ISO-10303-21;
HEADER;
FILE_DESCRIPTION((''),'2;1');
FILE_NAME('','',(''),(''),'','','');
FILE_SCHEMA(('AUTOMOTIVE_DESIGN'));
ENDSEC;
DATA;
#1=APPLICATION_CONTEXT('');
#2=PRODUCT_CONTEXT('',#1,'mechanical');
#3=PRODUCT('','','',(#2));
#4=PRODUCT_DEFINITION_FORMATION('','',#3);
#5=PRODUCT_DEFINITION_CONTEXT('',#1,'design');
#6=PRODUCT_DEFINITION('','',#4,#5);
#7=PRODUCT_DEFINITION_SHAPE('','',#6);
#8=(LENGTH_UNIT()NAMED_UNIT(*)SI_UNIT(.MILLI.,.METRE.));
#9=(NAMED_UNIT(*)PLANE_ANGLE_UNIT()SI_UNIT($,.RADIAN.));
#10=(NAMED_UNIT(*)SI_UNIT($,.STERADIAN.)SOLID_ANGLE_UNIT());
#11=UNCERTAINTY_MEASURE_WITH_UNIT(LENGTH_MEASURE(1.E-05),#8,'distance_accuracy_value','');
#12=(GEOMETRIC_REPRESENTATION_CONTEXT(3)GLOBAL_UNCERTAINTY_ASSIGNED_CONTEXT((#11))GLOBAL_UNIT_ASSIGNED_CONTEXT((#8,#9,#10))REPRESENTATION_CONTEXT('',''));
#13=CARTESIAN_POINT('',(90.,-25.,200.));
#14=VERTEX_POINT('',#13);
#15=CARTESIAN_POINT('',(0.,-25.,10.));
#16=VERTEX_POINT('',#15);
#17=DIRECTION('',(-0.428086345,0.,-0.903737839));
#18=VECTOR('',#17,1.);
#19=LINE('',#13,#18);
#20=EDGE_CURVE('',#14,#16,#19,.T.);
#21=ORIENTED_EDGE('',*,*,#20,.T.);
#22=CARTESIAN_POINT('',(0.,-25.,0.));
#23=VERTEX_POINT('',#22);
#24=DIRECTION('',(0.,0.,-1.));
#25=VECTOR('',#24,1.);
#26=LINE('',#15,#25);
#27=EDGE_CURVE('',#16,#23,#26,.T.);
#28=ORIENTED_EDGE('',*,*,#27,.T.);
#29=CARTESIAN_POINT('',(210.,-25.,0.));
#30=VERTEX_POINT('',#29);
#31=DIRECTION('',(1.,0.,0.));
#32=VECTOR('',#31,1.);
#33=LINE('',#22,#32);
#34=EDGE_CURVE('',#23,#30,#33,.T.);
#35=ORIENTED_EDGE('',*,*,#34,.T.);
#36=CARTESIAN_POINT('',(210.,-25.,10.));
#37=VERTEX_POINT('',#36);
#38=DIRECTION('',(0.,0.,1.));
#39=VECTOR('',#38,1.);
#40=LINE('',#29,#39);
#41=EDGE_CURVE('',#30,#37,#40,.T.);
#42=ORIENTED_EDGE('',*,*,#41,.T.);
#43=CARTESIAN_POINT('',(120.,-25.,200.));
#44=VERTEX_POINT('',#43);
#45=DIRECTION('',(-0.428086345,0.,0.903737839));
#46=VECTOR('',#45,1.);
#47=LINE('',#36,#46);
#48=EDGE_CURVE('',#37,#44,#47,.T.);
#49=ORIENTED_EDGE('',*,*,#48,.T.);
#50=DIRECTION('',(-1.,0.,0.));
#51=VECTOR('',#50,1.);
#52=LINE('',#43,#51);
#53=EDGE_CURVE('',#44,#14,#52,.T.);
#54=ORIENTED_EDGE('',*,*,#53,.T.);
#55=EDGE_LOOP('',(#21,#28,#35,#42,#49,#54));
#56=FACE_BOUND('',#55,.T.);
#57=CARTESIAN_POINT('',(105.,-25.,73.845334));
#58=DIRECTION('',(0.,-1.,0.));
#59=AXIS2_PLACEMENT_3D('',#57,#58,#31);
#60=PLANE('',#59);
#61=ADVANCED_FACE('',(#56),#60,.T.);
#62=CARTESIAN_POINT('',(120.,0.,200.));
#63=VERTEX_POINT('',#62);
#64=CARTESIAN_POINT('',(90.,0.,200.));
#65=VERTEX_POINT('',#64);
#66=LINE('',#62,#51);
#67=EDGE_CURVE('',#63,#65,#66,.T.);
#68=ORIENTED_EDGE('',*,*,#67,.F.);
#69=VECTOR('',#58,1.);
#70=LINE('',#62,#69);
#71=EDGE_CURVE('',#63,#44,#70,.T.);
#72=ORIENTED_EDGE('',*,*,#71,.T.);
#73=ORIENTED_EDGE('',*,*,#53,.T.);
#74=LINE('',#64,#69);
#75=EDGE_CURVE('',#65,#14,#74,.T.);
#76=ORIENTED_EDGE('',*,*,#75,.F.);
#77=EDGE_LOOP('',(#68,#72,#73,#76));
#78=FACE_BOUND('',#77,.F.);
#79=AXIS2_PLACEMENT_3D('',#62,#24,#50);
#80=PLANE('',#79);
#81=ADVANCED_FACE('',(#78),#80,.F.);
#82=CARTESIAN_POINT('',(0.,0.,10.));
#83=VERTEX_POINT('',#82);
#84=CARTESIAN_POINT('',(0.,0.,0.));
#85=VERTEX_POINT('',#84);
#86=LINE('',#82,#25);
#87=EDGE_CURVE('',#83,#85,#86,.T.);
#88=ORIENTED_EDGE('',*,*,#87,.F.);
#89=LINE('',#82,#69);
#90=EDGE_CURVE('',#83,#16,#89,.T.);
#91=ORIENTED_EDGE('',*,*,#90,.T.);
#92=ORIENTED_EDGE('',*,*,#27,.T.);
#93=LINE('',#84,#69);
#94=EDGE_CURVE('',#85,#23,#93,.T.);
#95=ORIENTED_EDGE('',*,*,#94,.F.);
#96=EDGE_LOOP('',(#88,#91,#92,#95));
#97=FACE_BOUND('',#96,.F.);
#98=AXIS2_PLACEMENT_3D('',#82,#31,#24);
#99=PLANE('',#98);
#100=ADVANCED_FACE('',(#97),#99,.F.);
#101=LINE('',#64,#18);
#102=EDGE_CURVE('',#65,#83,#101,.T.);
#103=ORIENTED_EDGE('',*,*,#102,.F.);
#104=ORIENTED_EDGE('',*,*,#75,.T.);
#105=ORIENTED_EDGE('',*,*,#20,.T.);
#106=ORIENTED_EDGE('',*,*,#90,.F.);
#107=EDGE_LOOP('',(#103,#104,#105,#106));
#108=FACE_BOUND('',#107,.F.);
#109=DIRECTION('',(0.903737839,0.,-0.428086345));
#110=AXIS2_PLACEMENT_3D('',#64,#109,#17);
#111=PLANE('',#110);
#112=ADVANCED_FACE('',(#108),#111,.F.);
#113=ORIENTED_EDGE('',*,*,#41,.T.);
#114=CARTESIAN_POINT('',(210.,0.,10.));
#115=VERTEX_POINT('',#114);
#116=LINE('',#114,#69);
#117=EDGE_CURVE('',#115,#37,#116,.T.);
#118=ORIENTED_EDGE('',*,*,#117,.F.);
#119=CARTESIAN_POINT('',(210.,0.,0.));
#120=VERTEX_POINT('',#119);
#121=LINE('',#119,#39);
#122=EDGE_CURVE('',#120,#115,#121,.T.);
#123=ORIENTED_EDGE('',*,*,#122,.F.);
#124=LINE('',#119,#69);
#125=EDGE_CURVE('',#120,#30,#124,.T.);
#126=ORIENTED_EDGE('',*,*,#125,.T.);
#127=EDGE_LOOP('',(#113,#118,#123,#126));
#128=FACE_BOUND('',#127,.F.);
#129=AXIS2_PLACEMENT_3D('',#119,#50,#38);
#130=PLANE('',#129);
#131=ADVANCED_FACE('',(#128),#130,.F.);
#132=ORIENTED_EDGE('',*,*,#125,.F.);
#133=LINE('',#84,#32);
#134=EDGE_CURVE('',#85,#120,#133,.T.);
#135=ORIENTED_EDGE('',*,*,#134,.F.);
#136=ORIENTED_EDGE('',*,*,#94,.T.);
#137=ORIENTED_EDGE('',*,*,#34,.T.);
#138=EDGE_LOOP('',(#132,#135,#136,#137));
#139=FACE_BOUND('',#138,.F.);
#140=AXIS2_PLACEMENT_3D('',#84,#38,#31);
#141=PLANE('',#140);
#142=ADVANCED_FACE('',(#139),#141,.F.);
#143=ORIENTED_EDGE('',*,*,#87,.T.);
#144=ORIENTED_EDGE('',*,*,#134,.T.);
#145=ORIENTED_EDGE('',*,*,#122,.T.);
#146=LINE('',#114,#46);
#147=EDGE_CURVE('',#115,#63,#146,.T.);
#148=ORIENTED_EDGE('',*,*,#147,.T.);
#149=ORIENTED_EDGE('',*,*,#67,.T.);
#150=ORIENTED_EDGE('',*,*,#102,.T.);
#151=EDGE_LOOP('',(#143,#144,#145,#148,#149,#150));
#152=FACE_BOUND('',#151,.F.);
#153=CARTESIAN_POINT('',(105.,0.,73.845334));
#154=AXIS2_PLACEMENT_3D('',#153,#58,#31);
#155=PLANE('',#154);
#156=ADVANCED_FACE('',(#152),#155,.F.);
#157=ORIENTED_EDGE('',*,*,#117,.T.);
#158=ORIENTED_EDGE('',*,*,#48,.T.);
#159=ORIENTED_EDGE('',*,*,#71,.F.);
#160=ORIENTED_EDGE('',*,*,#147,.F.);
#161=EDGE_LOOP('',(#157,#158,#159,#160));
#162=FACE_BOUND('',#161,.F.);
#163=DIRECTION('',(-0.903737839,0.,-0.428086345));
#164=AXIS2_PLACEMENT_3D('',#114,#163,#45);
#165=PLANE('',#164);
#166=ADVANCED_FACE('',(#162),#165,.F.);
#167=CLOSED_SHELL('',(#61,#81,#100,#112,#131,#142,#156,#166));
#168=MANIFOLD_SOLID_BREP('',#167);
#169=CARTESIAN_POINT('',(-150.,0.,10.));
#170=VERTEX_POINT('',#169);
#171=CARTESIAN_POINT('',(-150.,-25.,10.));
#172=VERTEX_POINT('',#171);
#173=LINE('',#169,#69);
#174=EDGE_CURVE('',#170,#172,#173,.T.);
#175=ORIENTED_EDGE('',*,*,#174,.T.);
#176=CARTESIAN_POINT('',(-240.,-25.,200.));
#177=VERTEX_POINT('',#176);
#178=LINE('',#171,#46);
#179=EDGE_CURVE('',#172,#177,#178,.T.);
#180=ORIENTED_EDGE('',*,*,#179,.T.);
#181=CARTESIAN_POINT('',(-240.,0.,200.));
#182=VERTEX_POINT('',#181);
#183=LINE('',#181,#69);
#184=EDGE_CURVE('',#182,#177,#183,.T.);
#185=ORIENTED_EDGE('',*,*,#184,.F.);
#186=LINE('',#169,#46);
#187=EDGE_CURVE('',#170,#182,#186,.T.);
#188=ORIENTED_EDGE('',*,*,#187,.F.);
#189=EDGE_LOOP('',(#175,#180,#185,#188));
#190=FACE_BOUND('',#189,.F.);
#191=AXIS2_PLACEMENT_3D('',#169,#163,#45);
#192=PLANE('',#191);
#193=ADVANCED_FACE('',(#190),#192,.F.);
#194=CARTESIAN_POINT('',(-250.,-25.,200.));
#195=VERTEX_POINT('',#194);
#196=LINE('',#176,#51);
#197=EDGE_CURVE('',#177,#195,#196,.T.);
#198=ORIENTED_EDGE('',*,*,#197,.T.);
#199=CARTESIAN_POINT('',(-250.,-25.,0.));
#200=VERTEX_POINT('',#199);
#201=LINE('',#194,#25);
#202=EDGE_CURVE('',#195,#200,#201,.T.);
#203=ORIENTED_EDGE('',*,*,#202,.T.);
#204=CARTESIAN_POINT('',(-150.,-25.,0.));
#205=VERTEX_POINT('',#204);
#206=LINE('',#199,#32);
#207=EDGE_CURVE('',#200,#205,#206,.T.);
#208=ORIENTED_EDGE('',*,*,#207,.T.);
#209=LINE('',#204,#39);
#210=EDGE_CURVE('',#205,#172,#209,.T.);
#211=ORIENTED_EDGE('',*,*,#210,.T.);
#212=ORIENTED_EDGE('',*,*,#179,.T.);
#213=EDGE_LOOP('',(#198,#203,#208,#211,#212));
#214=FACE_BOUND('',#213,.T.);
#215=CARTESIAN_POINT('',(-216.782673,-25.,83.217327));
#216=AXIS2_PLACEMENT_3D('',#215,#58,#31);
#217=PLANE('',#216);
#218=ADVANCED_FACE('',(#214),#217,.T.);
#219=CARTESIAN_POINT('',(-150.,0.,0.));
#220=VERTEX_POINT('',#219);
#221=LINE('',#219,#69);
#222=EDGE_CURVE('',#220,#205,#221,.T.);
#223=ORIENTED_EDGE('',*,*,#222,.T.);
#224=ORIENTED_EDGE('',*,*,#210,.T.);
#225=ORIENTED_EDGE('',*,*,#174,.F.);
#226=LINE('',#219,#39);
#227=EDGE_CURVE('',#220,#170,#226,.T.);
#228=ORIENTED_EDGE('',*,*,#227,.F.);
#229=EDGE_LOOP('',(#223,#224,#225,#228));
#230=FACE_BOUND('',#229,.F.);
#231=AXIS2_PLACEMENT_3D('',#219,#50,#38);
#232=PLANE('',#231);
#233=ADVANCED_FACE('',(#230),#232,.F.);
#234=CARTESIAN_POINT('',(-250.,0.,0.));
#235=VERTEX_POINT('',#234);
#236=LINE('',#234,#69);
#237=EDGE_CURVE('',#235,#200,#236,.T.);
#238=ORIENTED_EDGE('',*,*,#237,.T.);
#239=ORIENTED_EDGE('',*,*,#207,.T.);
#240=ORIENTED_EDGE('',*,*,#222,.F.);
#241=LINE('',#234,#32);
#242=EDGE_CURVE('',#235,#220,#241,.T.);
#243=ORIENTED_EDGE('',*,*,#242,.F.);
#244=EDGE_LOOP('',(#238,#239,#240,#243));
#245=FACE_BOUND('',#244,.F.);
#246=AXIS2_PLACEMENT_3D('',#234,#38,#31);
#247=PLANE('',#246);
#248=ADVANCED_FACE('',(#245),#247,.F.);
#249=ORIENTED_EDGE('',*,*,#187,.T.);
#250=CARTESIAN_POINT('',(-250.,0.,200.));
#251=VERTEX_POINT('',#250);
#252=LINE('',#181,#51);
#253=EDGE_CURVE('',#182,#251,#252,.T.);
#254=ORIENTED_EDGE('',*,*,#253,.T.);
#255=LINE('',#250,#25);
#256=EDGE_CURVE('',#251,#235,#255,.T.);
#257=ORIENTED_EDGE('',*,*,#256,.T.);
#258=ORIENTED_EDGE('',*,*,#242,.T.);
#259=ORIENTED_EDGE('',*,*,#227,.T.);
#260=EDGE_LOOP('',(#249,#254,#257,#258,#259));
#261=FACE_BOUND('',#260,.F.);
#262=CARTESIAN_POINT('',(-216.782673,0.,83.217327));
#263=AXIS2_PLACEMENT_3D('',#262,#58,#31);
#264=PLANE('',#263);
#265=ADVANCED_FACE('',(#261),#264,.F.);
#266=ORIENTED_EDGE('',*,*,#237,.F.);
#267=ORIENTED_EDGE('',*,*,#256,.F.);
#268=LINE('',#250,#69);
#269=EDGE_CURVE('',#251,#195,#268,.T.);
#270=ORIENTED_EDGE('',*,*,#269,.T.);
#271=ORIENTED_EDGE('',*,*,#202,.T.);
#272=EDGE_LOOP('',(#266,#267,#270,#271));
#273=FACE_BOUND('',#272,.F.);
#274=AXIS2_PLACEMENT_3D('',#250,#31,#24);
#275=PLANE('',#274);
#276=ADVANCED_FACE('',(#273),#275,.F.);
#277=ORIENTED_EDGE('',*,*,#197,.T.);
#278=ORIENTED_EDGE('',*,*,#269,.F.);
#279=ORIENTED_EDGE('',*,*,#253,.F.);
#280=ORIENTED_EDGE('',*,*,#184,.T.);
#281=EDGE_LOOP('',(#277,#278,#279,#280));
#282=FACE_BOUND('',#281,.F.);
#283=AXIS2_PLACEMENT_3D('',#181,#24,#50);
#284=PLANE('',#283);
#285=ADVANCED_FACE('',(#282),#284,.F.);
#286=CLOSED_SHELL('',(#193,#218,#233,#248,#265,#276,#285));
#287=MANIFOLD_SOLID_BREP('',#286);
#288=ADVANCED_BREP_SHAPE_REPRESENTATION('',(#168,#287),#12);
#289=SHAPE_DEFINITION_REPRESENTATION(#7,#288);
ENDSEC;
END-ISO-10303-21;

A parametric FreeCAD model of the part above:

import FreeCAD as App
import Part
import Sketcher

V = App.Vector
Q = App.Units.Quantity

doc = App.newDocument("Part")
body = doc.addObject("PartDesign::Body", "Body")

sketch1 = body.newObject("Sketcher::SketchObject", "Sketch")
sketch1.AttachmentSupport = (doc.getObject("XZ_Plane"), [""])
sketch1.MapMode = "FlatFace"
sketch1.addGeometry([
    Part.LineSegment(V(-240, 200, 0), V(-250, 200, 0)),
    Part.LineSegment(V(-250, 200, 0), V(-250, 0, 0)),
    Part.LineSegment(V(-250, 0, 0), V(-150, 0, 0)),
    Part.LineSegment(V(-150, 0, 0), V(-150, 10, 0)),
    Part.LineSegment(V(-150, 10, 0), V(-240, 200, 0)),
], False)
sketch1.addConstraint([
    Sketcher.Constraint("Coincident", 0, 2, 1, 1),
    Sketcher.Constraint("Coincident", 1, 2, 2, 1),
    Sketcher.Constraint("Coincident", 2, 2, 3, 1),
    Sketcher.Constraint("Coincident", 3, 2, 4, 1),
    Sketcher.Constraint("Coincident", 4, 2, 0, 1),
    Sketcher.Constraint("Horizontal", 0),
    Sketcher.Constraint("Vertical", 1),
    Sketcher.Constraint("Horizontal", 2),
    Sketcher.Constraint("Vertical", 3),
    Sketcher.Constraint("PointOnObject", 1, 2, -1),
    Sketcher.Constraint("Equal", 0, 3),
    Sketcher.Constraint("DistanceX", 0, 2, 0, 1, Q("10 mm")),
    Sketcher.Constraint("DistanceX", 2, 1, 2, 2, Q("100 mm")),
    Sketcher.Constraint("DistanceY", 1, 2, 1, 1, Q("200 mm")),
    Sketcher.Constraint("DistanceX", 0, 2, -1, 1, Q("250 mm")),
])
pad1 = body.newObject("PartDesign::Pad", "Pad")
pad1.Profile = sketch1
pad1.Length = 25
body2 = doc.addObject("PartDesign::Body", "Body001")

sketch2 = body2.newObject("Sketcher::SketchObject", "Sketch001")
sketch2.AttachmentSupport = (doc.getObject("XZ_Plane001"), [""])
sketch2.MapMode = "FlatFace"
sketch2.addGeometry([
    Part.LineSegment(V(0, 10, 0), V(0, 0, 0)),
    Part.LineSegment(V(0, 0, 0), V(210, 0, 0)),
    Part.LineSegment(V(210, 0, 0), V(210, 10, 0)),
    Part.LineSegment(V(210, 10, 0), V(120, 200, 0)),
    Part.LineSegment(V(120, 200, 0), V(90, 200, 0)),
    Part.LineSegment(V(90, 200, 0), V(0, 10, 0)),
], False)
sketch2.addConstraint([
    Sketcher.Constraint("Coincident", 0, 2, 1, 1),
    Sketcher.Constraint("Coincident", 1, 2, 2, 1),
    Sketcher.Constraint("Coincident", 2, 2, 3, 1),
    Sketcher.Constraint("Coincident", 3, 2, 4, 1),
    Sketcher.Constraint("Coincident", 4, 2, 5, 1),
    Sketcher.Constraint("Coincident", 5, 2, 0, 1),
    Sketcher.Constraint("Vertical", 0),
    Sketcher.Constraint("Horizontal", 1),
    Sketcher.Constraint("Vertical", 2),
    Sketcher.Constraint("Horizontal", 4),
    Sketcher.Constraint("Coincident", 0, 2, -1, 1),
    Sketcher.Constraint("Horizontal", 2, 2, 5, 2),
    Sketcher.Constraint("Equal", 3, 5),
    Sketcher.Constraint("DistanceX", 1, 1, 1, 2, Q("210 mm")),
    Sketcher.Constraint("DistanceX", 4, 2, 4, 1, Q("30 mm")),
    Sketcher.Constraint("DistanceY", 0, 2, 0, 1, Q("10 mm")),
    Sketcher.Constraint("DistanceY", -1, 1, 3, 2, Q("200 mm")),
])
pad2 = body2.newObject("PartDesign::Pad", "Pad001")
pad2.Profile = sketch2
pad2.Length = 25

doc.recompute()
